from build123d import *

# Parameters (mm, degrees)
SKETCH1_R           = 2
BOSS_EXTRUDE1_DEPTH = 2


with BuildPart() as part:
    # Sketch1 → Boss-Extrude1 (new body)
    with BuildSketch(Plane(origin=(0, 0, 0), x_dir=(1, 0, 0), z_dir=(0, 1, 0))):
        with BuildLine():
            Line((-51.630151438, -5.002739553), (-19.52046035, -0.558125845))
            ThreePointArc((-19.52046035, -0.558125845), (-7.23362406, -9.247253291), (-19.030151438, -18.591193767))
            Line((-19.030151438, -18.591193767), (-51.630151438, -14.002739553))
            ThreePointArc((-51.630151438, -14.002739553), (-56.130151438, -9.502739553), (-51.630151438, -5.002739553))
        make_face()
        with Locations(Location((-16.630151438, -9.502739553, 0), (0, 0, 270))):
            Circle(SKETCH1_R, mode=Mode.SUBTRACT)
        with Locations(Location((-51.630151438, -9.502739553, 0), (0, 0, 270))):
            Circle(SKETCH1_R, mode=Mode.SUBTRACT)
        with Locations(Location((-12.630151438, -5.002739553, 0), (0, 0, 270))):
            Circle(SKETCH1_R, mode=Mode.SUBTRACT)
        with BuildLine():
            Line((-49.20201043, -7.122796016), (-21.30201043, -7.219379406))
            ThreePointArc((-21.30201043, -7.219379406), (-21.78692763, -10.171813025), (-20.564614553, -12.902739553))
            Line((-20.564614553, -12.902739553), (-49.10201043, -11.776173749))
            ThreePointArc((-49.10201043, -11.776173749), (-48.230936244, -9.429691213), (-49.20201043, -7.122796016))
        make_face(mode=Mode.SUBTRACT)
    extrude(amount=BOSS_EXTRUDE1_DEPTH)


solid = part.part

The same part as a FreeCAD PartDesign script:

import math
import FreeCAD as App
import Part
import Sketcher
from FreeCAD import Vector
Q = App.Units.Quantity

doc = App.newDocument("Part")
params = doc.addObject("Spreadsheet::Sheet", "Params")
for row, (alias, value) in enumerate([
    ("sketch1_diameter", "4 mm"),
    ("sketch1_radius", "4.5 mm"),
    ("sketch1_radius2", "9.4 mm"),
    ("sketch1_radius3", "5.2 mm"),
    ("sketch1_radius4", "3.4 mm"),
    ("pad1_length", "2 mm"),
], start=1):
    params.set(f"A{row}", alias)
    params.set(f"B{row}", "=" + value)
    params.setAlias(f"B{row}", alias)

body = doc.addObject("PartDesign::Body", "Body")

# Sketch on XZ plane
sketch1 = body.newObject("Sketcher::SketchObject", "Sketch")
sketch1.AttachmentSupport = (doc.getObject("XZ_Plane"), [""])
sketch1.MapMode = "FlatFace"
sketch1.addGeometry([
    Part.LineSegment(Vector(-19.5, 0.6, 0), Vector(-51.6, 5, 0)),  # 0
    Part.ArcOfCircle(Part.Circle(Vector(-51.6, 9.5, 0), Vector(0, 0, 1), 4.5), math.radians(90), math.radians(270)),  # 1
    Part.LineSegment(Vector(-51.6, 14, 0), Vector(-19, 18.6, 0)),  # 2
    Part.ArcOfCircle(Part.Circle(Vector(-16.6, 9.5, 0), Vector(0, 0, 1), 9.4), math.radians(-108), math.radians(105)),  # 3
    Part.Circle(Vector(-16.6, 9.5, 0), Vector(0, 0, 1), 2),  # 4
    Part.LineSegment(Vector(-49.2, 7.1, 0), Vector(-21.3, 7.2, 0)),  # 5
    Part.ArcOfCircle(Part.Circle(Vector(-16.6, 9.5, 0), Vector(0, 0, 1), 5.2), math.radians(139), math.radians(206)),  # 6
    Part.LineSegment(Vector(-20.6, 12.9, 0), Vector(-49.1, 11.8, 0)),  # 7
    Part.ArcOfCircle(Part.Circle(Vector(-51.6, 9.5, 0), Vector(0, 0, 1), 3.4), math.radians(-44), math.radians(42)),  # 8
    Part.Circle(Vector(-51.6, 9.5, 0), Vector(0, 0, 1), 2),  # 9
    Part.Circle(Vector(-12.6, 5, 0), Vector(0, 0, 1), 2),  # 10
], False)
sketch1.addConstraint([
    Sketcher.Constraint("Coincident", 0, 2, 1, 2),
    Sketcher.Constraint("Coincident", 1, 1, 2, 1),
    Sketcher.Constraint("Coincident", 2, 2, 3, 2),
    Sketcher.Constraint("Coincident", 3, 1, 0, 1),
    Sketcher.Constraint("Coincident", 5, 2, 6, 2),
    Sketcher.Constraint("Coincident", 6, 1, 7, 1),
    Sketcher.Constraint("Coincident", 7, 2, 8, 2),
    Sketcher.Constraint("Coincident", 8, 1, 5, 1),
    Sketcher.Constraint("Coincident", 4, 3, 3, 3),
    Sketcher.Constraint("Coincident", 6, 3, 3, 3),
    Sketcher.Constraint("Coincident", 8, 3, 1, 3),
    Sketcher.Constraint("Coincident", 9, 3, 1, 3),
    Sketcher.Constraint("Equal", 4, 9),
    Sketcher.Constraint("Equal", 9, 10),
    Sketcher.Constraint("Horizontal", 1, 3, 3, 3),
    Sketcher.Constraint("Horizontal", 10, 3, 0, 2),
    Sketcher.Constraint("Vertical", 9, 3, 0, 2),
    Sketcher.Constraint("Vertical", 0, 2, 1, 1),
    Sketcher.Constraint("Diameter", 4, Q("4 mm")),
    Sketcher.Constraint("Radius", 1, Q("4.5 mm")),
    Sketcher.Constraint("Radius", 3, Q("9.4 mm")),
    Sketcher.Constraint("Radius", 6, Q("5.2 mm")),
    Sketcher.Constraint("Radius", 8, Q("3.4 mm")),
    Sketcher.Constraint("DistanceX", 1, 3, 3, 3, Q("35 mm")),
    Sketcher.Constraint("DistanceX", 3, 3, 10, 3, Q("4 mm")),
    Sketcher.Constraint("DistanceX", 2, 2, 6, 3, Q("2.4 mm")),
    Sketcher.Constraint("DistanceY", 6, 3, 6, 1, Q("3.4 mm")),
    Sketcher.Constraint("DistanceX", 8, 1, 7, 2, Q("0.1 mm")),
    Sketcher.Constraint("DistanceX", 1, 3, -1, 1, Q("51.630151 mm")),
    Sketcher.Constraint("DistanceY", -1, 1, 1, 3, Q("9.50274 mm")),
    Sketcher.Constraint("DistanceX", 3, 1, -1, 1, Q("19.52046 mm")),
    Sketcher.Constraint("DistanceX", 5, 2, -1, 1, Q("21.30201 mm")),
    Sketcher.Constraint("DistanceX", 7, 2, -1, 1, Q("49.10201 mm")),
])
sketch1.setExpression("Constraints[18]", "Params.sketch1_diameter")
sketch1.setExpression("Constraints[19]", "Params.sketch1_radius")
sketch1.setExpression("Constraints[20]", "Params.sketch1_radius2")
sketch1.setExpression("Constraints[21]", "Params.sketch1_radius3")
sketch1.setExpression("Constraints[22]", "Params.sketch1_radius4")
pad1 = body.newObject("PartDesign::Pad", "Pad")
pad1.Profile = sketch1
pad1.setExpression("Length", "Params.pad1_length")
pad1.Reversed = True

doc.recompute()
